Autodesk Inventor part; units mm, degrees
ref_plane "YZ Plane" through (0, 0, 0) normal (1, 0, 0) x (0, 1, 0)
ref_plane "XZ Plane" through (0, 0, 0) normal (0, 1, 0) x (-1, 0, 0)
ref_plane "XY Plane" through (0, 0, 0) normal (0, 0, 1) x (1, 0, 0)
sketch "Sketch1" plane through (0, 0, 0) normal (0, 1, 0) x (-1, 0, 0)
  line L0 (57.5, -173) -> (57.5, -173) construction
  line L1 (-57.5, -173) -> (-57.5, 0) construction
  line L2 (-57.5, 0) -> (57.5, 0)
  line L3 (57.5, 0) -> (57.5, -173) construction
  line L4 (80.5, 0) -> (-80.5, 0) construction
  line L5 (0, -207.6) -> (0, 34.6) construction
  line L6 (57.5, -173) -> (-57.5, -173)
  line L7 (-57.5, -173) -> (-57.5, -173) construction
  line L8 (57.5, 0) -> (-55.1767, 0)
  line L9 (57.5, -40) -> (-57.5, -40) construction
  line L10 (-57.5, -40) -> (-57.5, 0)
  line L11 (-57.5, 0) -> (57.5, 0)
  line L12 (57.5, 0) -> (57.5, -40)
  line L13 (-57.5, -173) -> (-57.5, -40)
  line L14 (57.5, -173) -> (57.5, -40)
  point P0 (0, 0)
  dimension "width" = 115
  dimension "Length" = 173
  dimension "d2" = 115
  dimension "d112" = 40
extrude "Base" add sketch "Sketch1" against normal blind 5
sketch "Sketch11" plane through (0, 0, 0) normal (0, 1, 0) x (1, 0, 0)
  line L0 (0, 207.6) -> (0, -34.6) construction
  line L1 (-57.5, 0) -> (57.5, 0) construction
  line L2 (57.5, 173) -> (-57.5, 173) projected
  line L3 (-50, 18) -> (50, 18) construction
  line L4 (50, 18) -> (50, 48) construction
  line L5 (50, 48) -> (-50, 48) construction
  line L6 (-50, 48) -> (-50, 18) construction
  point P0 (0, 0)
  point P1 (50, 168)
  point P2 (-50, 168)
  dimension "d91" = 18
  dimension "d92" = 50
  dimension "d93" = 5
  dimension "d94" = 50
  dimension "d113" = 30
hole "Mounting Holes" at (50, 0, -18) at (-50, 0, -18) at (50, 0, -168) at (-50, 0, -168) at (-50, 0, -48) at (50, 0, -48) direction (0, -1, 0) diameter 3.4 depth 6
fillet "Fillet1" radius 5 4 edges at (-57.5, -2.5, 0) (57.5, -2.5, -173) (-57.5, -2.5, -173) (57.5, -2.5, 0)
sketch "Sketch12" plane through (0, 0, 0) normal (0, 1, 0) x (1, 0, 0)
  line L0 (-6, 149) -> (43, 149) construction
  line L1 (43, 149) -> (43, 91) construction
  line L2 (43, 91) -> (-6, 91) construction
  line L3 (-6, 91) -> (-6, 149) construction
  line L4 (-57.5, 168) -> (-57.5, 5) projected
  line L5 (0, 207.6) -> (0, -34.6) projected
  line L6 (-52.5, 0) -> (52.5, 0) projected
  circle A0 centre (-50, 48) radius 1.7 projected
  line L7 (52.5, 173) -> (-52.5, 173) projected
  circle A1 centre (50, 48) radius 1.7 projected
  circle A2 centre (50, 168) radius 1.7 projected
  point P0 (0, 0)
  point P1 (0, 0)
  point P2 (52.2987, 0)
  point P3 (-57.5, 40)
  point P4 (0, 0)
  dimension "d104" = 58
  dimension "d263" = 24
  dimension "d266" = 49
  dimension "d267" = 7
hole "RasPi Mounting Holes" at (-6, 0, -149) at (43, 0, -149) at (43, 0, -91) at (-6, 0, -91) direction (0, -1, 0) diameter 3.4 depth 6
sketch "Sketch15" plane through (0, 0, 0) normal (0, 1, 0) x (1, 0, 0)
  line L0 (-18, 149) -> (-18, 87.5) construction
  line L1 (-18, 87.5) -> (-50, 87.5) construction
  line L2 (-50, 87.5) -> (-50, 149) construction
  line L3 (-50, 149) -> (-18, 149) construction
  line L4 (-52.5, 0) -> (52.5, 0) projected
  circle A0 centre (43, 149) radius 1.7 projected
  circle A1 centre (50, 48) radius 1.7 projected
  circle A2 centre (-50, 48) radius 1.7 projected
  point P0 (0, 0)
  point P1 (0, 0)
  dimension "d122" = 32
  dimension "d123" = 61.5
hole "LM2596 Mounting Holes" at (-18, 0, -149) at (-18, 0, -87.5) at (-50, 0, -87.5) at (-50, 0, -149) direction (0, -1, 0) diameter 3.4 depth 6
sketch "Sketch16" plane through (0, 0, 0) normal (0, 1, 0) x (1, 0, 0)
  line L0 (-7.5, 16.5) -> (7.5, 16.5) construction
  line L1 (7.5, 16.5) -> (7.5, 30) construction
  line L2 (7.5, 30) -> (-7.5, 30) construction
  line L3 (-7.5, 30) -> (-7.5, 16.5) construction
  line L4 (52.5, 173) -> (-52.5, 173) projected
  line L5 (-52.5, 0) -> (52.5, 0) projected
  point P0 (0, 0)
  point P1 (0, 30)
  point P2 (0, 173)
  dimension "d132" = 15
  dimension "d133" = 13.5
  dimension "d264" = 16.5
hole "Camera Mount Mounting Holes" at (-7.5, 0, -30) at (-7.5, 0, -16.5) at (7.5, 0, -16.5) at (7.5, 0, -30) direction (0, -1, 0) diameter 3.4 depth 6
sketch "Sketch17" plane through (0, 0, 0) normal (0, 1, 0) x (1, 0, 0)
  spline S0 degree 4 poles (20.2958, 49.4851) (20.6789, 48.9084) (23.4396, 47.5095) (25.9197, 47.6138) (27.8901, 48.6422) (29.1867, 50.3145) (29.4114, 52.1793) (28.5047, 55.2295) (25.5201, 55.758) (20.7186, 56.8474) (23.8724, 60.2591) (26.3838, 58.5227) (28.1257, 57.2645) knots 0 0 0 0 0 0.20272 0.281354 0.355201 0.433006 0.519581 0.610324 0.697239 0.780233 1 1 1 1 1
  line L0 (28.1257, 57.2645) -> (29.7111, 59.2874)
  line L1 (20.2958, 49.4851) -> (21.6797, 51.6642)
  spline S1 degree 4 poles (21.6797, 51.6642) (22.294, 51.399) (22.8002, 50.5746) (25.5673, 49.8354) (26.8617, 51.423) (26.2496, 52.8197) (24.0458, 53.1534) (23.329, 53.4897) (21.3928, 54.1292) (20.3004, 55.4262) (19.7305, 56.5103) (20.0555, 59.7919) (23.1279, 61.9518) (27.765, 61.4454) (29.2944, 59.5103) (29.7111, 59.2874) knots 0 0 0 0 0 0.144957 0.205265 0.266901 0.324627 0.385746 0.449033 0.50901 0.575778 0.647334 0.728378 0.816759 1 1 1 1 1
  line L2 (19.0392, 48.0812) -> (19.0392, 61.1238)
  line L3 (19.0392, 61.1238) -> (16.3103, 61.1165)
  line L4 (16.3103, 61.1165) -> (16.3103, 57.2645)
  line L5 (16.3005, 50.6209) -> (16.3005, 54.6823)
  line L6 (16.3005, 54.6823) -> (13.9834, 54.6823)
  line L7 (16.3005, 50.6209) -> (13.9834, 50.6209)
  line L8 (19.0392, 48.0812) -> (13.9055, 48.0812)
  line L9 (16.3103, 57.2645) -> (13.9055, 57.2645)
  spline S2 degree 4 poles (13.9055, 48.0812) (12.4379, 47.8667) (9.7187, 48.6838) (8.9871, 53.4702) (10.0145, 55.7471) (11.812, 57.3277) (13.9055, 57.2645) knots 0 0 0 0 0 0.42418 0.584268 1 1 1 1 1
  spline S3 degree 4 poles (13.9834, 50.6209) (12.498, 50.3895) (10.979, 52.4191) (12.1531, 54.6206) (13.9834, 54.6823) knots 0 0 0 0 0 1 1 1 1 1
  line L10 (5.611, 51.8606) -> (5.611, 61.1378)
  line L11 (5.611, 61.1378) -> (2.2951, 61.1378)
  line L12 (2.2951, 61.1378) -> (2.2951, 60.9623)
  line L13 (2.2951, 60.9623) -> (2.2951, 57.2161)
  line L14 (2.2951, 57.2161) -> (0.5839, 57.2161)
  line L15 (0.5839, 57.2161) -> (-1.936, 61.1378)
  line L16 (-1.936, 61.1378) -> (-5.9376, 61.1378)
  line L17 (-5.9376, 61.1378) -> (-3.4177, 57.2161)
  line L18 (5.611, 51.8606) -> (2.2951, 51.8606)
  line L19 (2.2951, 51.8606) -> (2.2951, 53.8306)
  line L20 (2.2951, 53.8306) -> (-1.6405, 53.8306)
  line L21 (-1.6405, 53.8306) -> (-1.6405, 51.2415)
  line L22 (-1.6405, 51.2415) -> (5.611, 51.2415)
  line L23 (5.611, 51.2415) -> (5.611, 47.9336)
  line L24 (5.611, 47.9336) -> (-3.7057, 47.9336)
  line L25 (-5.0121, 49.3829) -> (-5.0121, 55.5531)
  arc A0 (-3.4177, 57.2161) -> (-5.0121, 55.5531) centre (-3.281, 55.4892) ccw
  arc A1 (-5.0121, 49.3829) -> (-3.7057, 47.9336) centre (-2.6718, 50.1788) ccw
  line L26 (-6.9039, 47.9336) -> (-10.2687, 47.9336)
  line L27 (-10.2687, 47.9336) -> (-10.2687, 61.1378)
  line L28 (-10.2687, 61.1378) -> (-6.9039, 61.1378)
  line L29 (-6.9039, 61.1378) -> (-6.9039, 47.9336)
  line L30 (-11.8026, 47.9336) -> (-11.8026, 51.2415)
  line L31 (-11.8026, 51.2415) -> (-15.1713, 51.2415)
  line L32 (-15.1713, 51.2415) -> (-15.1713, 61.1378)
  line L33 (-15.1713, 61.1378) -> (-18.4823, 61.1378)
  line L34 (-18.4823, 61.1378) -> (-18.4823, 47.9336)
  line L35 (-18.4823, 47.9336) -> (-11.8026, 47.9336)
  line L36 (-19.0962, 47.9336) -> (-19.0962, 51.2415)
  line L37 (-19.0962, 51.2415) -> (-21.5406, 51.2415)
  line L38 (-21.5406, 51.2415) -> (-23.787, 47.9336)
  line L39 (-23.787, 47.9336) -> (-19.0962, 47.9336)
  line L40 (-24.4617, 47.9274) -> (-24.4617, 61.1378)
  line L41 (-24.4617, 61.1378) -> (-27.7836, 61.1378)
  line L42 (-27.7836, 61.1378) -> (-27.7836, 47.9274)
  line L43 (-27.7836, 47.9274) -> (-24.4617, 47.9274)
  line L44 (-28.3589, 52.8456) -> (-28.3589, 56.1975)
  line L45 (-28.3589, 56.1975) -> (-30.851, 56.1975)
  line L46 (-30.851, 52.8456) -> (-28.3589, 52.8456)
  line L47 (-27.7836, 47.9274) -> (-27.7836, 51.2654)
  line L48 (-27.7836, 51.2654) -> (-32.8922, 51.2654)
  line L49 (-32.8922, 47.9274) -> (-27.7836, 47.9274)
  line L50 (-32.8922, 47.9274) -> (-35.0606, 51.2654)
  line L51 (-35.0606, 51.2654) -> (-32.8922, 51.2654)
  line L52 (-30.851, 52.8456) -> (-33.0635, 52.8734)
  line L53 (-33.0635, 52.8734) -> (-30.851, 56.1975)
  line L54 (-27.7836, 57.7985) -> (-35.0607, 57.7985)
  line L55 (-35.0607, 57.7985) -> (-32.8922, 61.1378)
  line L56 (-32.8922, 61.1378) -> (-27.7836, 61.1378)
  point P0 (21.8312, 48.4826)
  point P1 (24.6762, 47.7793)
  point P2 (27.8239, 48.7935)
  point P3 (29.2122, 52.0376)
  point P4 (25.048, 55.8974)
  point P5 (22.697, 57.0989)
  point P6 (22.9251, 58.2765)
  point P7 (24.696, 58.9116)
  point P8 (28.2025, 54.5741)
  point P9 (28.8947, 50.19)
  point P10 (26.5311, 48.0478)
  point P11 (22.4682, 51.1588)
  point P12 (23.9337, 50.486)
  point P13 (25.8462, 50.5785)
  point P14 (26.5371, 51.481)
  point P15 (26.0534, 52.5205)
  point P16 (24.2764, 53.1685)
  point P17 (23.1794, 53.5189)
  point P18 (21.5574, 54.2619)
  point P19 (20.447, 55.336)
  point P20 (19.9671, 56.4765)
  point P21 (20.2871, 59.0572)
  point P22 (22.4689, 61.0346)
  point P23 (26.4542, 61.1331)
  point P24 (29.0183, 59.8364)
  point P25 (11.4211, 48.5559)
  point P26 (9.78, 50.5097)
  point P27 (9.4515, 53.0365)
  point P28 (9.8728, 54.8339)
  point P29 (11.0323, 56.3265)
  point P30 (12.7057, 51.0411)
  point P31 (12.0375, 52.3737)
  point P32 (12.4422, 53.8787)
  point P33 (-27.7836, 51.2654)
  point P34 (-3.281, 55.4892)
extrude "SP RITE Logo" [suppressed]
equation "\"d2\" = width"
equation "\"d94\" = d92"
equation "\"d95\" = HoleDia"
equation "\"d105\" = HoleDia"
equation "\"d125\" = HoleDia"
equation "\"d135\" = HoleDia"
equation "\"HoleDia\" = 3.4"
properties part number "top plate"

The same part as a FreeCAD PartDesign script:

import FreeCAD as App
import Part
import Sketcher


def edges_at(feature, points):
    """Names of the edges that pass closest to the given points."""
    edges = feature.Shape.Edges
    near = lambda p: min(range(len(edges)), key=lambda i: edges[i].distToShape(Part.Vertex(*p))[0])
    return sorted({f"Edge{near(p) + 1}" for p in points})

doc = App.newDocument("Part")
body = doc.addObject("PartDesign::Body", "Body")

# Sketch on XZ plane
sketch1 = doc.addObject("Sketcher::SketchObject", "Sketch")
body.addObject(sketch1)
sketch1.AttachmentSupport = (doc.XZ_Plane, [""])
sketch1.MapMode = "FlatFace"
sketch1.addGeometry([
    Part.LineSegment(App.Vector(-57.5, 0, 0), App.Vector(57.5, 0, 0)),
    Part.LineSegment(App.Vector(57.5, 0, 0), App.Vector(57.5, -173, 0)),
    Part.LineSegment(App.Vector(57.5, -173, 0), App.Vector(-57.5, -173, 0)),
    Part.LineSegment(App.Vector(-57.5, -173, 0), App.Vector(-57.5, 0, 0)),
], False)
sketch1.addConstraint([
    Sketcher.Constraint("Coincident", 0, 2, 1, 1),
    Sketcher.Constraint("Coincident", 1, 2, 2, 1),
    Sketcher.Constraint("Coincident", 2, 2, 3, 1),
    Sketcher.Constraint("Coincident", 3, 2, 0, 1),
    Sketcher.Constraint("Horizontal", 0),
    Sketcher.Constraint("Vertical", 1),
    Sketcher.Constraint("Horizontal", 2),
    Sketcher.Constraint("Vertical", 3),
    Sketcher.Constraint("Symmetric", 0, 2, 3, 2, -1, 1),
    Sketcher.Constraint("DistanceX", 0, 1, 0, 2, 115.0),
    Sketcher.Constraint("DistanceY", 1, 2, 1, 1, 173.0),
])
pad1 = doc.addObject("PartDesign::Pad", "Pad")
body.addObject(pad1)
pad1.Profile = sketch1
pad1.Length = 5

# Sketch on XZ plane
sketch2 = doc.addObject("Sketcher::SketchObject", "Sketch001")
body.addObject(sketch2)
sketch2.AttachmentSupport = (doc.XZ_Plane, [""])
sketch2.MapMode = "FlatFace"
sketch2.addGeometry([
    Part.Circle(App.Vector(50, -18, 0), App.Vector(0, 0, 1), 1.7),  # 0
    Part.Circle(App.Vector(-50, -18, 0), App.Vector(0, 0, 1), 1.7),  # 1
    Part.Circle(App.Vector(50, -168, 0), App.Vector(0, 0, 1), 1.7),  # 2
    Part.Circle(App.Vector(-50, -168, 0), App.Vector(0, 0, 1), 1.7),  # 3
    Part.Circle(App.Vector(-50, -48, 0), App.Vector(0, 0, 1), 1.7),  # 4
    Part.Circle(App.Vector(50, -48, 0), App.Vector(0, 0, 1), 1.7),  # 5
], False)
sketch2.addConstraint([
    Sketcher.Constraint("Equal", 0, 1),
    Sketcher.Constraint("Equal", 1, 2),
    Sketcher.Constraint("Equal", 2, 3),
    Sketcher.Constraint("Equal", 3, 4),
    Sketcher.Constraint("Equal", 4, 5),
    Sketcher.Constraint("Symmetric", 0, 3, 1, 3, -2),
    Sketcher.Constraint("Symmetric", 2, 3, 3, 3, -2),
    Sketcher.Constraint("Symmetric", 4, 3, 5, 3, -2),
    Sketcher.Constraint("Vertical", 0, 3, 2, 3),
    Sketcher.Constraint("Vertical", 3, 3, 4, 3),
    Sketcher.Constraint("Diameter", 0, 3.4),
    Sketcher.Constraint("DistanceX", -1, 1, 0, 3, 50.0),
    Sketcher.Constraint("DistanceY", 0, 3, -1, 1, 18.0),
    Sketcher.Constraint("DistanceY", 2, 3, -1, 1, 168.0),
    Sketcher.Constraint("DistanceY", 4, 3, -1, 1, 48.0),
])
doc.recompute()
hole = doc.addObject("PartDesign::Hole", "Hole")
body.addObject(hole)
hole.Profile = sketch2
hole.ThreadType = "None"
hole.Diameter = 3.4
hole.DepthType = "Dimension"
hole.Depth = 6
hole.DrillPoint = "Flat"
hole.Reversed = True
doc.recompute()

fillet = doc.addObject("PartDesign::Fillet", "Fillet")
body.addObject(fillet)
fillet.Base = (hole, edges_at(hole, [
    (-57.5, -2.5, 0),
    (57.5, -2.5, -173),
    (-57.5, -2.5, -173),
    (57.5, -2.5, 0),
]))
fillet.Radius = 5

# Sketch on XZ plane
sketch3 = doc.addObject("Sketcher::SketchObject", "Sketch002")
body.addObject(sketch3)
sketch3.AttachmentSupport = (doc.XZ_Plane, [""])
sketch3.MapMode = "FlatFace"
sketch3.addGeometry([
    Part.Circle(App.Vector(-6, -149, 0), App.Vector(0, 0, 1), 1.7),
    Part.Circle(App.Vector(43, -149, 0), App.Vector(0, 0, 1), 1.7),
    Part.Circle(App.Vector(43, -91, 0), App.Vector(0, 0, 1), 1.7),
    Part.Circle(App.Vector(-6, -91, 0), App.Vector(0, 0, 1), 1.7),
], False)
sketch3.addConstraint([
    Sketcher.Constraint("Equal", 0, 1),
    Sketcher.Constraint("Equal", 1, 2),
    Sketcher.Constraint("Equal", 2, 3),
    Sketcher.Constraint("Horizontal", 0, 3, 1, 3),
    Sketcher.Constraint("Horizontal", 2, 3, 3, 3),
    Sketcher.Constraint("Vertical", 1, 3, 2, 3),
    Sketcher.Constraint("Vertical", 0, 3, 3, 3),
    Sketcher.Constraint("Diameter", 0, 3.4),
    Sketcher.Constraint("DistanceX", 0, 3, -1, 1, 6.0),
    Sketcher.Constraint("DistanceY", 0, 3, -1, 1, 149.0),
    Sketcher.Constraint("DistanceX", -1, 1, 1, 3, 43.0),
    Sketcher.Constraint("DistanceY", 2, 3, -1, 1, 91.0),
])
doc.recompute()
hole2 = doc.addObject("PartDesign::Hole", "Hole001")
body.addObject(hole2)
hole2.Profile = sketch3
hole2.ThreadType = "None"
hole2.Diameter = 3.4
hole2.DepthType = "Dimension"
hole2.Depth = 6
hole2.DrillPoint = "Flat"
hole2.Reversed = True

# Sketch on XZ plane
sketch4 = doc.addObject("Sketcher::SketchObject", "Sketch003")
body.addObject(sketch4)
sketch4.AttachmentSupport = (doc.XZ_Plane, [""])
sketch4.MapMode = "FlatFace"
sketch4.addGeometry([
    Part.Circle(App.Vector(-18, -149, 0), App.Vector(0, 0, 1), 1.7),
    Part.Circle(App.Vector(-18, -87.5, 0), App.Vector(0, 0, 1), 1.7),
    Part.Circle(App.Vector(-50, -87.5, 0), App.Vector(0, 0, 1), 1.7),
    Part.Circle(App.Vector(-50, -149, 0), App.Vector(0, 0, 1), 1.7),
], False)
sketch4.addConstraint([
    Sketcher.Constraint("Equal", 0, 1),
    Sketcher.Constraint("Equal", 1, 2),
    Sketcher.Constraint("Equal", 2, 3),
    Sketcher.Constraint("Horizontal", 1, 3, 2, 3),
    Sketcher.Constraint("Horizontal", 0, 3, 3, 3),
    Sketcher.Constraint("Vertical", 0, 3, 1, 3),
    Sketcher.Constraint("Vertical", 2, 3, 3, 3),
    Sketcher.Constraint("Diameter", 0, 3.4),
    Sketcher.Constraint("DistanceX", 0, 3, -1, 1, 18.0),
    Sketcher.Constraint("DistanceY", 0, 3, -1, 1, 149.0),
    Sketcher.Constraint("DistanceX", 2, 3, -1, 1, 50.0),
    Sketcher.Constraint("DistanceY", 1, 3, -1, 1, 87.5),
])
doc.recompute()
hole3 = doc.addObject("PartDesign::Hole", "Hole002")
body.addObject(hole3)
hole3.Profile = sketch4
hole3.ThreadType = "None"
hole3.Diameter = 3.4
hole3.DepthType = "Dimension"
hole3.Depth = 6
hole3.DrillPoint = "Flat"
hole3.Reversed = True

# Sketch on XZ plane
sketch5 = doc.addObject("Sketcher::SketchObject", "Sketch004")
body.addObject(sketch5)
sketch5.AttachmentSupport = (doc.XZ_Plane, [""])
sketch5.MapMode = "FlatFace"
sketch5.addGeometry([
    Part.Circle(App.Vector(-7.5, -30, 0), App.Vector(0, 0, 1), 1.7),
    Part.Circle(App.Vector(-7.5, -16.5, 0), App.Vector(0, 0, 1), 1.7),
    Part.Circle(App.Vector(7.5, -16.5, 0), App.Vector(0, 0, 1), 1.7),
    Part.Circle(App.Vector(7.5, -30, 0), App.Vector(0, 0, 1), 1.7),
], False)
sketch5.addConstraint([
    Sketcher.Constraint("Equal", 0, 1),
    Sketcher.Constraint("Equal", 1, 2),
    Sketcher.Constraint("Equal", 2, 3),
    Sketcher.Constraint("Symmetric", 1, 3, 2, 3, -2),
    Sketcher.Constraint("Symmetric", 0, 3, 3, 3, -2),
    Sketcher.Constraint("Vertical", 0, 3, 1, 3),
    Sketcher.Constraint("Diameter", 0, 3.4),
    Sketcher.Constraint("DistanceY", 0, 3, -1, 1, 30.0),
    Sketcher.Constraint("DistanceX", 1, 3, 2, 3, 15.0),
    Sketcher.Constraint("DistanceY", 1, 3, -1, 1, 16.5),
])
doc.recompute()
hole4 = doc.addObject("PartDesign::Hole", "Hole003")
body.addObject(hole4)
hole4.Profile = sketch5
hole4.ThreadType = "None"
hole4.Diameter = 3.4
hole4.DepthType = "Dimension"
hole4.Depth = 6
hole4.DrillPoint = "Flat"
hole4.Reversed = True

doc.recompute()
